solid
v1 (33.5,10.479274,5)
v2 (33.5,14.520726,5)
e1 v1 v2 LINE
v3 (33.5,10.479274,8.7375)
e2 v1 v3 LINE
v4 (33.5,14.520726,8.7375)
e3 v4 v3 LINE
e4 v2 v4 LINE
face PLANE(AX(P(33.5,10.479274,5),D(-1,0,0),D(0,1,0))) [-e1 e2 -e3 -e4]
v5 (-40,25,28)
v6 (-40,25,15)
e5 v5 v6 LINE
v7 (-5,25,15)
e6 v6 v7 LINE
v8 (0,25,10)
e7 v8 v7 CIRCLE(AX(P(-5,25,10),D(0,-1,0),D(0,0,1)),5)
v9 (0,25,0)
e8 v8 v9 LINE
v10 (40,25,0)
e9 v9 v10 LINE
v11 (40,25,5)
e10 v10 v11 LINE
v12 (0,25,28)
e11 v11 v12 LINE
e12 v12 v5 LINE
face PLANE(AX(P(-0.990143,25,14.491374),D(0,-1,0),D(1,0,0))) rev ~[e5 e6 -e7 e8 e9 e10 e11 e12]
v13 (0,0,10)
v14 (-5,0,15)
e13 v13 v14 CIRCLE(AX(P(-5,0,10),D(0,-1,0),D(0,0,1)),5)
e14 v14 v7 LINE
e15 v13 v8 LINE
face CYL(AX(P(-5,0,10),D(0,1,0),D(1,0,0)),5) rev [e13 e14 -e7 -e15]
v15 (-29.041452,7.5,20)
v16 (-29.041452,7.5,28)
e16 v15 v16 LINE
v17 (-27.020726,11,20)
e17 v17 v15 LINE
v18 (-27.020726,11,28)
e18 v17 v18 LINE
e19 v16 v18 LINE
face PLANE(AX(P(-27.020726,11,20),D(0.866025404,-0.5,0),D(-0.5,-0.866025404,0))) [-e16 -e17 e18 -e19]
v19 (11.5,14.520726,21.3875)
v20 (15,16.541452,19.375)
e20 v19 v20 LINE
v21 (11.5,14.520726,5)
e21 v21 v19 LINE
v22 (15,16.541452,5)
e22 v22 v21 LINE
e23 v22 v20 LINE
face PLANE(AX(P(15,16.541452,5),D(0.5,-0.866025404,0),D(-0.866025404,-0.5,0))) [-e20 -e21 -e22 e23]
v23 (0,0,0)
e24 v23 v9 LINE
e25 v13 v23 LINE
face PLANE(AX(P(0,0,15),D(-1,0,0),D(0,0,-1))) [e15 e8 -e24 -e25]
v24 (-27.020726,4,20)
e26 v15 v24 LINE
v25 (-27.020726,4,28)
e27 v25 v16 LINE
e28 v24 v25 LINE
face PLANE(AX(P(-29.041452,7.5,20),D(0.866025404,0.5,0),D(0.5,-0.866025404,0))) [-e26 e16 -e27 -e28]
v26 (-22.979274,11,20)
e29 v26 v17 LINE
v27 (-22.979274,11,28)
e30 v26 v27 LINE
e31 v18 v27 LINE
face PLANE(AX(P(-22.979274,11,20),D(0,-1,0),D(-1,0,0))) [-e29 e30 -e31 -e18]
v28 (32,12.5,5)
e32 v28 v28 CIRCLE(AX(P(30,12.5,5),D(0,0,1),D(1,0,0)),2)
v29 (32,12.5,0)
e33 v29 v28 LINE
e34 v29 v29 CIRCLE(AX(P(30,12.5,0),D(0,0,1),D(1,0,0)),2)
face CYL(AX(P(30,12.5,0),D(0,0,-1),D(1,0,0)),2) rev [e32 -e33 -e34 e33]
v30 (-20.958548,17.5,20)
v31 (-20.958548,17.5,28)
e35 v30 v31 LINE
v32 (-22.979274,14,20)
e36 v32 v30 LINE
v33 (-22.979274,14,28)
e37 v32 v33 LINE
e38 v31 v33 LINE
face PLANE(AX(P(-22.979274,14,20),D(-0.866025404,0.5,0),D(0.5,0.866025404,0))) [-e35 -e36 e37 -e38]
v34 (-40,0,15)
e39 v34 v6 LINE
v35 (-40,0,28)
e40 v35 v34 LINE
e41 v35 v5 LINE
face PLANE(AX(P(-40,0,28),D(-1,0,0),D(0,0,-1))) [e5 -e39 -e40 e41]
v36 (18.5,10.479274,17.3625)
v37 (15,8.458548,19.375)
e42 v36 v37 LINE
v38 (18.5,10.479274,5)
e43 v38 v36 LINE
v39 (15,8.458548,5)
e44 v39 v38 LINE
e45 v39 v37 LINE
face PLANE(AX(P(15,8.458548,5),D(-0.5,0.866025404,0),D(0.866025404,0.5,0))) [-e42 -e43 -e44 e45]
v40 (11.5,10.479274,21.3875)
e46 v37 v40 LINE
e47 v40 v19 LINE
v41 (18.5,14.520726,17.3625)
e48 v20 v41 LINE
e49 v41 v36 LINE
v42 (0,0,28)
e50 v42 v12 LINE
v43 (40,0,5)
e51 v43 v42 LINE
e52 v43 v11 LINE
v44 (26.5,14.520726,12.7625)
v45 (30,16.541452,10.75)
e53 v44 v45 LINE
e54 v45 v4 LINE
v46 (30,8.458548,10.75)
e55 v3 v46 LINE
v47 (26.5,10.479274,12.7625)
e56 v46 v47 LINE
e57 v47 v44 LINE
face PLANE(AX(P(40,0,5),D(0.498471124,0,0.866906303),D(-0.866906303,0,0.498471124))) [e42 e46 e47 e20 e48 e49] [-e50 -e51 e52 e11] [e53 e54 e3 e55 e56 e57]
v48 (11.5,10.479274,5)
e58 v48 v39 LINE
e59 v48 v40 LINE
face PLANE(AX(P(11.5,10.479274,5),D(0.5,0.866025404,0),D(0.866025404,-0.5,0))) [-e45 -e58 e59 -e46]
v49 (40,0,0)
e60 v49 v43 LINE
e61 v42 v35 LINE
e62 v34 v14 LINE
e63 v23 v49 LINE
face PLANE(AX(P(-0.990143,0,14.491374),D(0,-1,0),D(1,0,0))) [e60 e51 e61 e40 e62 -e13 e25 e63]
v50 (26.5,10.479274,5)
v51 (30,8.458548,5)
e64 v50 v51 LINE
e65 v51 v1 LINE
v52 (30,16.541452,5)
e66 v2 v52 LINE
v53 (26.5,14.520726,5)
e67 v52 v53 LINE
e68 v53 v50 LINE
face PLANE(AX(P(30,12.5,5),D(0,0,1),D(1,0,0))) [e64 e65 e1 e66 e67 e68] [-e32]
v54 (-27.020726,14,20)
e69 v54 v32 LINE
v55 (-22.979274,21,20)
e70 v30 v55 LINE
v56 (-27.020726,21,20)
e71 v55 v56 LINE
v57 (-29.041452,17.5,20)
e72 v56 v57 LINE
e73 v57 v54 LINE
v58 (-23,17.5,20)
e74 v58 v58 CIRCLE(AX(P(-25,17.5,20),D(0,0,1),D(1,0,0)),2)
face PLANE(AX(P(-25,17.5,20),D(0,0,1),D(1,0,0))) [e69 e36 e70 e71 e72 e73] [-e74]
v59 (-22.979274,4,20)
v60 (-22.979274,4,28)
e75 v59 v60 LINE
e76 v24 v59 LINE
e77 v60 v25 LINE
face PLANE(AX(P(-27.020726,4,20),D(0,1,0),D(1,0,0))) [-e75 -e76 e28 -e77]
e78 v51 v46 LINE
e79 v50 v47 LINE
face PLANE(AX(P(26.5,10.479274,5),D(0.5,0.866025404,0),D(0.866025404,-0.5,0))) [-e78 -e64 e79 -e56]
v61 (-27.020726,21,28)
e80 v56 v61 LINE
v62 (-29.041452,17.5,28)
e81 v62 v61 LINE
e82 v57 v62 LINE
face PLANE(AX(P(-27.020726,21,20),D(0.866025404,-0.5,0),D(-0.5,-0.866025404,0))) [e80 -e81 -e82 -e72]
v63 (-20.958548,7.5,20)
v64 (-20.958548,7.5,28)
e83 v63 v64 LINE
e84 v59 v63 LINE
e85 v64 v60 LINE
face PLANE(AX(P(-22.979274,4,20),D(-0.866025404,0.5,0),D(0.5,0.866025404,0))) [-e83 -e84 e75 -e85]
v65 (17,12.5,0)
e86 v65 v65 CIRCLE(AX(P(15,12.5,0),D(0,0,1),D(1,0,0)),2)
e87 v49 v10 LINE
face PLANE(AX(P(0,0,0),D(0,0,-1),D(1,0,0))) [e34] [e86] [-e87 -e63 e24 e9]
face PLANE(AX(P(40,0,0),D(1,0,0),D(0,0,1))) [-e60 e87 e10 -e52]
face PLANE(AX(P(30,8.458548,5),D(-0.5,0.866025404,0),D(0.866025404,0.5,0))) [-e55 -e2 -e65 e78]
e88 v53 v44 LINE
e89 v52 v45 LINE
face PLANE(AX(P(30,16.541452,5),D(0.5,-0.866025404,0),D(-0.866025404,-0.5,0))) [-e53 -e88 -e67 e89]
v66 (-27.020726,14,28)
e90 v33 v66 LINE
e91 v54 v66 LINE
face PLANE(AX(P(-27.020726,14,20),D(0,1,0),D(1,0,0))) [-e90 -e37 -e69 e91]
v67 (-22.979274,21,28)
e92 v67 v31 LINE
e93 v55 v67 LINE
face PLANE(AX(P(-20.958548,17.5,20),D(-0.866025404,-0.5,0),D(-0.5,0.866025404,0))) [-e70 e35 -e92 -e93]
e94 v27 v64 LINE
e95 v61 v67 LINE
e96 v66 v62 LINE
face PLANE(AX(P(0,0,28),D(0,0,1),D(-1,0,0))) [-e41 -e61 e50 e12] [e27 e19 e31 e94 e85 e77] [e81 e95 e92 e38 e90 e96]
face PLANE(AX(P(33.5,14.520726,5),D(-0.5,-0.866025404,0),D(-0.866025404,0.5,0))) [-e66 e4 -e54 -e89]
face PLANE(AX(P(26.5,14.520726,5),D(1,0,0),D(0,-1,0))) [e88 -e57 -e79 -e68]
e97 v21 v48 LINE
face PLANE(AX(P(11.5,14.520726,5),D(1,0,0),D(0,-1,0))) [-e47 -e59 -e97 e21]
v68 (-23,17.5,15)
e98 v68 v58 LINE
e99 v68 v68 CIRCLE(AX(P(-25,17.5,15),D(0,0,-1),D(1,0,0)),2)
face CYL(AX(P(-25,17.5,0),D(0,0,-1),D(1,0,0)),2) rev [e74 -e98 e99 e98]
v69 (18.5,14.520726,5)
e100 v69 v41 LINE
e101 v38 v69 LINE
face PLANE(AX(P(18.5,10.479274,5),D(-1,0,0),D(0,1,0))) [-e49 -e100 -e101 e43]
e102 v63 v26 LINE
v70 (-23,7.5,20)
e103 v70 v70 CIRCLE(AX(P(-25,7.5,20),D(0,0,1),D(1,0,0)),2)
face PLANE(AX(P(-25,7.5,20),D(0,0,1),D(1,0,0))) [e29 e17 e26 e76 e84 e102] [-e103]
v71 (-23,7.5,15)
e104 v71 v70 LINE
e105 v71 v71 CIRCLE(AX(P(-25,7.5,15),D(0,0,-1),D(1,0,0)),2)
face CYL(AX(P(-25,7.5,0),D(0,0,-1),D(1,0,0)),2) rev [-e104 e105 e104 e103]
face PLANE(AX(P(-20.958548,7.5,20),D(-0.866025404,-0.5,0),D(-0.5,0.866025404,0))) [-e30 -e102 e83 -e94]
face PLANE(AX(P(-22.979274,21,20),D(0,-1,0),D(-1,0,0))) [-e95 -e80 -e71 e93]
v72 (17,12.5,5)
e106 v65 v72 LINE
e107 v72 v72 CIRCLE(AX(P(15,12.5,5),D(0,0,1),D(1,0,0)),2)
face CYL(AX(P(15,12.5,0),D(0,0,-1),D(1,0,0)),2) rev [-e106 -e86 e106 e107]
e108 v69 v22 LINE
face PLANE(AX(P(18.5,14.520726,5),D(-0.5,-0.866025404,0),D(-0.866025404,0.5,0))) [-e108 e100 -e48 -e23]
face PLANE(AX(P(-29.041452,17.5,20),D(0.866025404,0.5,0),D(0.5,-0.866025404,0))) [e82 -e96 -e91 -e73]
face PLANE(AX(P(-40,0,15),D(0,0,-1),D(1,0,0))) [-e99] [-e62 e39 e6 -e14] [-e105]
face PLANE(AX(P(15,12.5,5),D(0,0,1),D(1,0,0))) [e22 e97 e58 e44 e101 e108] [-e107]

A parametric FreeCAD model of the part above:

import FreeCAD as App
import Part
import Sketcher
from FreeCAD import Vector
Q = App.Units.Quantity


def edges_at(feature, points):
    """Names of the edges that pass closest to the given points."""
    edges = feature.Shape.Edges
    near = lambda p: min(range(len(edges)), key=lambda i: edges[i].distToShape(Part.Vertex(*p))[0])
    return sorted({f"Edge{near(p) + 1}" for p in points})


def add_polygon(sketch, points):
    """Adds a closed chain of lines whose ends are joined by coincident constraints."""
    first, n = sketch.GeometryCount, len(points)
    for a, b in zip(points, points[1:] + points[:1]):
        sketch.addGeometry(Part.LineSegment(App.Vector(*a, 0), App.Vector(*b, 0)), False)
    for i in range(n):
        sketch.addConstraint(Sketcher.Constraint("Coincident", first + i, 2, first + (i + 1) % n, 1))

doc = App.newDocument("Part")
body = doc.addObject("PartDesign::Body", "Body")

# Sketch on XZ plane
sketch1 = body.newObject("Sketcher::SketchObject", "Sketch")
sketch1.AttachmentSupport = (doc.getObject("XZ_Plane"), [""])
sketch1.MapMode = "FlatFace"
add_polygon(sketch1, [(0, 15), (0, 0), (40, 0), (40, 5), (0, 28), (-40, 28), (-40, 15)])  # lines 0-6
sketch1.addConstraint([
    Sketcher.Constraint("Vertical", 0),
    Sketcher.Constraint("Horizontal", 1),
    Sketcher.Constraint("Vertical", 2),
    Sketcher.Constraint("Horizontal", 4),
    Sketcher.Constraint("Vertical", 5),
    Sketcher.Constraint("Horizontal", 6),
    Sketcher.Constraint("Coincident", 0, 2, -1, 1),
    Sketcher.Constraint("PointOnObject", 3, 2, -2),
    Sketcher.Constraint("Equal", 1, 4),
    Sketcher.Constraint("DistanceX", 1, 1, 1, 2, Q("40 mm")),
    Sketcher.Constraint("DistanceY", 0, 2, 0, 1, Q("15 mm")),
    Sketcher.Constraint("DistanceY", 2, 1, 2, 2, Q("5 mm")),
    Sketcher.Constraint("DistanceY", 5, 2, 5, 1, Q("13 mm")),
])
pad1 = body.newObject("PartDesign::Pad", "Pad")
pad1.Profile = sketch1
pad1.Length = 25
pad1.Reversed = True

# Sketch on XY plane
sketch2 = body.newObject("Sketcher::SketchObject", "Sketch001")
sketch2.AttachmentSupport = (doc.getObject("XY_Plane"), [""])
sketch2.MapMode = "FlatFace"
sketch2.addGeometry([
    Part.Circle(Vector(30, 12.5, 0), Vector(0, 0, 1), 2),
    Part.Circle(Vector(15, 12.5, 0), Vector(0, 0, 1), 2),
], False)
sketch2.addConstraint([
    Sketcher.Constraint("Equal", 0, 1),
    Sketcher.Constraint("Horizontal", 0, 3, 1, 3),
    Sketcher.Constraint("Diameter", 0, Q("4 mm")),
    Sketcher.Constraint("DistanceX", -1, 1, 0, 3, Q("30 mm")),
    Sketcher.Constraint("DistanceX", -1, 1, 1, 3, Q("15 mm")),
    Sketcher.Constraint("DistanceY", -1, 1, 0, 3, Q("12.5 mm")),
])
pocket1 = body.newObject("PartDesign::Pocket", "Pocket")
pocket1.Profile = sketch2
pocket1.Type = "ThroughAll"
pocket1.Midplane = True

# Sketch on XY plane
sketch3 = body.newObject("Sketcher::SketchObject", "Sketch002")
sketch3.AttachmentSupport = (doc.getObject("XY_Plane"), [""])
sketch3.MapMode = "FlatFace"
sketch3.AttachmentOffset = App.Placement(Vector(0, 0, 5), App.Rotation())
add_polygon(sketch3, [(11.5, 14.5), (11.5, 10.5), (15, 8.5), (18.5, 10.5), (18.5, 14.5), (15, 16.5)])  # lines 0-5
sketch3.addGeometry(Part.Circle(Vector(15, 12.5, 0), Vector(0, 0, 1), 2), False)  # 6
add_polygon(sketch3, [(26.5, 14.5), (26.5, 10.5), (30, 8.5), (33.5, 10.5), (33.5, 14.5), (30, 16.5)])  # lines 7-12
sketch3.addGeometry(Part.Circle(Vector(30, 12.5, 0), Vector(0, 0, 1), 2), False)  # 13
sketch3.addConstraint([
    Sketcher.Constraint("Vertical", 0),
    Sketcher.Constraint("Vertical", 3),
    Sketcher.Constraint("Vertical", 7),
    Sketcher.Constraint("Vertical", 10),
    Sketcher.Constraint("Equal", 6, 13),
    Sketcher.Constraint("Parallel", 1, 4),
    Sketcher.Constraint("Parallel", 2, 5),
    Sketcher.Constraint("Parallel", 4, 8),
    Sketcher.Constraint("Parallel", 5, 9),
    Sketcher.Constraint("Parallel", 8, 11),
    Sketcher.Constraint("Parallel", 9, 12),
    Sketcher.Constraint("Horizontal", 6, 3, 13, 3),
    Sketcher.Constraint("Horizontal", 0, 2, 2, 2),
    Sketcher.Constraint("Horizontal", 3, 2, 5, 2),
    Sketcher.Constraint("Horizontal", 2, 2, 7, 2),
    Sketcher.Constraint("Horizontal", 1, 2, 8, 2),
    Sketcher.Constraint("Horizontal", 7, 2, 9, 2),
    Sketcher.Constraint("Horizontal", 5, 2, 10, 2),
    Sketcher.Constraint("Horizontal", 4, 2, 11, 2),
    Sketcher.Constraint("Vertical", 6, 3, 1, 2),
    Sketcher.Constraint("Vertical", 1, 2, 4, 2),
    Sketcher.Constraint("Vertical", 13, 3, 8, 2),
    Sketcher.Constraint("Diameter", 6, Q("4 mm")),
    Sketcher.Constraint("Angle", 1, Q("-30 deg")),
    Sketcher.Constraint("DistanceX", -1, 1, 6, 3, Q("15 mm")),
    Sketcher.Constraint("DistanceX", -1, 1, 13, 3, Q("30 mm")),
    Sketcher.Constraint("DistanceX", 0, 2, 2, 2, Q("7 mm")),
    Sketcher.Constraint("DistanceY", -1, 1, 6, 3, Q("12.5 mm")),
    Sketcher.Constraint("DistanceY", 0, 2, 0, 1, Q("4.041452 mm")),
    Sketcher.Constraint("DistanceY", -1, 1, 1, 2, Q("8.458548 mm")),
])
pocket2 = body.newObject("PartDesign::Pocket", "Pocket001")
pocket2.Profile = sketch3
pocket2.Length = 20
pocket2.Reversed = True

# Sketch on XY plane
sketch4 = body.newObject("Sketcher::SketchObject", "Sketch003")
sketch4.AttachmentSupport = (doc.getObject("XY_Plane"), [""])
sketch4.MapMode = "FlatFace"
sketch4.AttachmentOffset = App.Placement(Vector(0, 0, 20), App.Rotation())
add_polygon(sketch4, [(-23, 21), (-27, 21), (-29, 17.5), (-27, 14), (-23, 14), (-21, 17.5)])  # lines 0-5
sketch4.addGeometry(Part.Circle(Vector(-25, 17.5, 0), Vector(0, 0, 1), 2), False)  # 6
add_polygon(sketch4, [(-23, 11), (-27, 11), (-29, 7.5), (-27, 4), (-23, 4), (-21, 7.5)])  # lines 7-12
sketch4.addGeometry(Part.Circle(Vector(-25, 7.5, 0), Vector(0, 0, 1), 2), False)  # 13
sketch4.addConstraint([
    Sketcher.Constraint("Horizontal", 0),
    Sketcher.Constraint("Horizontal", 3),
    Sketcher.Constraint("Horizontal", 7),
    Sketcher.Constraint("Horizontal", 10),
    Sketcher.Constraint("Equal", 6, 13),
    Sketcher.Constraint("Parallel", 1, 4),
    Sketcher.Constraint("Parallel", 2, 5),
    Sketcher.Constraint("Parallel", 4, 8),
    Sketcher.Constraint("Parallel", 5, 9),
    Sketcher.Constraint("Parallel", 8, 11),
    Sketcher.Constraint("Parallel", 9, 12),
    Sketcher.Constraint("Horizontal", 6, 3, 1, 2),
    Sketcher.Constraint("Horizontal", 1, 2, 4, 2),
    Sketcher.Constraint("Horizontal", 13, 3, 8, 2),
    Sketcher.Constraint("Horizontal", 8, 2, 11, 2),
    Sketcher.Constraint("Vertical", 6, 3, 13, 3),
    Sketcher.Constraint("Vertical", 0, 2, 2, 2),
    Sketcher.Constraint("Vertical", 3, 2, 5, 2),
    Sketcher.Constraint("Vertical", 2, 2, 7, 2),
    Sketcher.Constraint("Vertical", 1, 2, 8, 2),
    Sketcher.Constraint("Vertical", 7, 2, 9, 2),
    Sketcher.Constraint("Vertical", 5, 2, 10, 2),
    Sketcher.Constraint("Diameter", 6, Q("4 mm")),
    Sketcher.Constraint("Angle", 1, Q("-120 deg")),
    Sketcher.Constraint("DistanceX", 6, 3, -1, 1, Q("25 mm")),
    Sketcher.Constraint("DistanceY", -1, 1, 0, 2, Q("21 mm")),
    Sketcher.Constraint("DistanceY", -1, 1, 2, 2, Q("14 mm")),
    Sketcher.Constraint("DistanceY", -1, 1, 7, 2, Q("11 mm")),
    Sketcher.Constraint("DistanceX", 0, 2, 0, 1, Q("4.041452 mm")),
    Sketcher.Constraint("DistanceX", 1, 2, -1, 1, Q("29.041452 mm")),
])
pocket3 = body.newObject("PartDesign::Pocket", "Pocket002")
pocket3.Profile = sketch4
pocket3.Length = 20
pocket3.Reversed = True

# Sketch on XY plane
sketch5 = body.newObject("Sketcher::SketchObject", "Sketch004")
sketch5.AttachmentSupport = (doc.getObject("XY_Plane"), [""])
sketch5.MapMode = "FlatFace"
sketch5.addGeometry([
    Part.Circle(Vector(-25, 7.5, 0), Vector(0, 0, 1), 2),
    Part.Circle(Vector(-25, 17.5, 0), Vector(0, 0, 1), 2),
], False)
sketch5.addConstraint([
    Sketcher.Constraint("Equal", 0, 1),
    Sketcher.Constraint("Vertical", 0, 3, 1, 3),
    Sketcher.Constraint("Diameter", 0, Q("4 mm")),
    Sketcher.Constraint("DistanceX", 0, 3, -1, 1, Q("25 mm")),
    Sketcher.Constraint("DistanceY", 0, 3, 1, 3, Q("10 mm")),
    Sketcher.Constraint("DistanceY", -1, 1, 0, 3, Q("7.5 mm")),
])
pocket4 = body.newObject("PartDesign::Pocket", "Pocket003")
pocket4.Profile = sketch5
pocket4.Length = 40
pocket4.Reversed = True
doc.recompute()

fillet = body.newObject("PartDesign::Fillet", "Fillet")
fillet.Base = (pocket4, edges_at(pocket4, [(0, 12.5, 15)]))
fillet.Radius = 5

doc.recompute()
